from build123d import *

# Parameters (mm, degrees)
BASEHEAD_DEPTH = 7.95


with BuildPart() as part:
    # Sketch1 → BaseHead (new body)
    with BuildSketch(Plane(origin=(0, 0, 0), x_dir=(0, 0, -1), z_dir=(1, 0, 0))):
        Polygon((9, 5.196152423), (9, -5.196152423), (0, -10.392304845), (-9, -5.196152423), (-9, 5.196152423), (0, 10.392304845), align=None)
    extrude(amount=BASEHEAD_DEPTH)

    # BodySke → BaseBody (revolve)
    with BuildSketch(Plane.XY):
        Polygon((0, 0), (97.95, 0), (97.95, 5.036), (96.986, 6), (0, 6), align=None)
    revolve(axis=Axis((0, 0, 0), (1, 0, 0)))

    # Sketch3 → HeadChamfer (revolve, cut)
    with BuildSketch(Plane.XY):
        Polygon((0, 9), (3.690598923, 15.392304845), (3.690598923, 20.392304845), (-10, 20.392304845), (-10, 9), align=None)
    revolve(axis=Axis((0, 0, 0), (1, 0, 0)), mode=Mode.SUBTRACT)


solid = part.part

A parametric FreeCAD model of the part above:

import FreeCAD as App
import Part
import Sketcher
from FreeCAD import Vector
Q = App.Units.Quantity


def add_polygon(sketch, points):
    """Adds a closed chain of lines whose ends are joined by coincident constraints."""
    first, n = sketch.GeometryCount, len(points)
    for a, b in zip(points, points[1:] + points[:1]):
        sketch.addGeometry(Part.LineSegment(App.Vector(*a, 0), App.Vector(*b, 0)), False)
    for i in range(n):
        sketch.addConstraint(Sketcher.Constraint("Coincident", first + i, 2, first + (i + 1) % n, 1))

doc = App.newDocument("Part")
params = doc.addObject("Spreadsheet::Sheet", "Params")
for row, (alias, value) in enumerate([
    ("pad1_length", "7.95 mm"),
    ("sketch2_height", "6 mm"),
    ("sketch2_width", "97.95 mm"),
    ("revolution_angle", "360 deg"),
    ("sketch3_width", "10 mm"),
    ("sketch3_height", "5 mm"),
    ("groove_angle", "360 deg"),
], start=1):
    params.set(f"A{row}", alias)
    params.set(f"B{row}", "=" + value)
    params.setAlias(f"B{row}", alias)

body = doc.addObject("PartDesign::Body", "Body")

# Sketch on YZ plane
sketch1 = body.newObject("Sketcher::SketchObject", "Sketch")
sketch1.AttachmentSupport = (doc.getObject("YZ_Plane"), [""])
sketch1.MapMode = "FlatFace"
add_polygon(sketch1, [(-5, -9), (5, -9), (10, 0), (5, 9), (-5, 9), (-10, 0)])  # lines 0-5
sketch1.addConstraint(Sketcher.Constraint("Horizontal", 0))
sketch1.addConstraint(Sketcher.Constraint("Horizontal", 3))
sketch1.addConstraint(Sketcher.Constraint("Symmetric", 0, 2, 3, 2, -1, 1))
sketch1.addConstraint(Sketcher.Constraint("Symmetric", 1, 2, 4, 2, -1, 1))
sketch1.addConstraint(Sketcher.Constraint("PointOnObject", 1, 2, -1))
sketch1.addConstraint(Sketcher.Constraint("Parallel", 2, 5))
sketch1.addConstraint(Sketcher.Constraint("Vertical", 0, 2, 2, 2))
sketch1.addConstraint(Sketcher.Constraint("Angle", 1, Q("60 deg")))
sketch1.addConstraint(Sketcher.Constraint("DistanceY", 0, 2, -1, 1, Q("9 mm")))
sketch1.addConstraint(Sketcher.Constraint("DistanceX", 0, 1, 0, 2, Q("10.392305 mm")))
pad1 = body.newObject("PartDesign::Pad", "Pad")
pad1.Profile = sketch1
pad1.setExpression("Length", "Params.pad1_length")

# Sketch on XY plane
sketch2 = body.newObject("Sketcher::SketchObject", "Sketch001")
sketch2.AttachmentSupport = (doc.getObject("XY_Plane"), [""])
sketch2.MapMode = "FlatFace"
add_polygon(sketch2, [(0, 0), (98, 0), (98, 5), (97, 6), (0, 6)])  # lines 0-4
sketch2.addConstraint(Sketcher.Constraint("Horizontal", 0))
sketch2.addConstraint(Sketcher.Constraint("Vertical", 1))
sketch2.addConstraint(Sketcher.Constraint("Horizontal", 3))
sketch2.addConstraint(Sketcher.Constraint("Vertical", 4))
sketch2.addConstraint(Sketcher.Constraint("Coincident", 4, 2, -1, 1))
sketch2.addConstraint(Sketcher.Constraint("DistanceY", 4, 2, 4, 1, Q("6 mm")))
sketch2.addConstraint(Sketcher.Constraint("Angle", 2, Q("135 deg")))
sketch2.addConstraint(Sketcher.Constraint("DistanceX", 0, 1, 0, 2, Q("97.95 mm")))
sketch2.addConstraint(Sketcher.Constraint("DistanceX", 3, 2, 3, 1, Q("96.986 mm")))
sketch2.setExpression("Constraints[10]", "Params.sketch2_height")
sketch2.setExpression("Constraints[12]", "Params.sketch2_width")
revolution = body.newObject("PartDesign::Revolution", "Revolution")
revolution.Profile = sketch2
revolution.ReferenceAxis = (sketch2, ["H_Axis"])
revolution.setExpression("Angle", "Params.revolution_angle")

# Sketch on XY plane
sketch3 = body.newObject("Sketcher::SketchObject", "Sketch002")
sketch3.AttachmentSupport = (doc.getObject("XY_Plane"), [""])
sketch3.MapMode = "FlatFace"
add_polygon(sketch3, [(0, 9), (4, 15), (4, 20), (-10, 20), (-10, 9)])  # lines 0-4
sketch3.addConstraint(Sketcher.Constraint("Vertical", 1))
sketch3.addConstraint(Sketcher.Constraint("Horizontal", 2))
sketch3.addConstraint(Sketcher.Constraint("Vertical", 3))
sketch3.addConstraint(Sketcher.Constraint("Horizontal", 4))
sketch3.addConstraint(Sketcher.Constraint("PointOnObject", 4, 2, -2))
sketch3.addConstraint(Sketcher.Constraint("DistanceX", 4, 1, 4, 2, Q("10 mm")))
sketch3.addConstraint(Sketcher.Constraint("DistanceY", 1, 1, 1, 2, Q("5 mm")))
sketch3.addConstraint(Sketcher.Constraint("Angle", 0, Q("60 deg")))
sketch3.addConstraint(Sketcher.Constraint("DistanceY", -1, 1, 3, 2, Q("9 mm")))
sketch3.addConstraint(Sketcher.Constraint("DistanceX", 2, 2, 2, 1, Q("13.690599 mm")))
sketch3.setExpression("Constraints[10]", "Params.sketch3_width")
sketch3.setExpression("Constraints[11]", "Params.sketch3_height")
groove = body.newObject("PartDesign::Groove", "Groove")
groove.Profile = sketch3
groove.ReferenceAxis = (sketch3, ["H_Axis"])
groove.setExpression("Angle", "Params.groove_angle")

doc.recompute()
